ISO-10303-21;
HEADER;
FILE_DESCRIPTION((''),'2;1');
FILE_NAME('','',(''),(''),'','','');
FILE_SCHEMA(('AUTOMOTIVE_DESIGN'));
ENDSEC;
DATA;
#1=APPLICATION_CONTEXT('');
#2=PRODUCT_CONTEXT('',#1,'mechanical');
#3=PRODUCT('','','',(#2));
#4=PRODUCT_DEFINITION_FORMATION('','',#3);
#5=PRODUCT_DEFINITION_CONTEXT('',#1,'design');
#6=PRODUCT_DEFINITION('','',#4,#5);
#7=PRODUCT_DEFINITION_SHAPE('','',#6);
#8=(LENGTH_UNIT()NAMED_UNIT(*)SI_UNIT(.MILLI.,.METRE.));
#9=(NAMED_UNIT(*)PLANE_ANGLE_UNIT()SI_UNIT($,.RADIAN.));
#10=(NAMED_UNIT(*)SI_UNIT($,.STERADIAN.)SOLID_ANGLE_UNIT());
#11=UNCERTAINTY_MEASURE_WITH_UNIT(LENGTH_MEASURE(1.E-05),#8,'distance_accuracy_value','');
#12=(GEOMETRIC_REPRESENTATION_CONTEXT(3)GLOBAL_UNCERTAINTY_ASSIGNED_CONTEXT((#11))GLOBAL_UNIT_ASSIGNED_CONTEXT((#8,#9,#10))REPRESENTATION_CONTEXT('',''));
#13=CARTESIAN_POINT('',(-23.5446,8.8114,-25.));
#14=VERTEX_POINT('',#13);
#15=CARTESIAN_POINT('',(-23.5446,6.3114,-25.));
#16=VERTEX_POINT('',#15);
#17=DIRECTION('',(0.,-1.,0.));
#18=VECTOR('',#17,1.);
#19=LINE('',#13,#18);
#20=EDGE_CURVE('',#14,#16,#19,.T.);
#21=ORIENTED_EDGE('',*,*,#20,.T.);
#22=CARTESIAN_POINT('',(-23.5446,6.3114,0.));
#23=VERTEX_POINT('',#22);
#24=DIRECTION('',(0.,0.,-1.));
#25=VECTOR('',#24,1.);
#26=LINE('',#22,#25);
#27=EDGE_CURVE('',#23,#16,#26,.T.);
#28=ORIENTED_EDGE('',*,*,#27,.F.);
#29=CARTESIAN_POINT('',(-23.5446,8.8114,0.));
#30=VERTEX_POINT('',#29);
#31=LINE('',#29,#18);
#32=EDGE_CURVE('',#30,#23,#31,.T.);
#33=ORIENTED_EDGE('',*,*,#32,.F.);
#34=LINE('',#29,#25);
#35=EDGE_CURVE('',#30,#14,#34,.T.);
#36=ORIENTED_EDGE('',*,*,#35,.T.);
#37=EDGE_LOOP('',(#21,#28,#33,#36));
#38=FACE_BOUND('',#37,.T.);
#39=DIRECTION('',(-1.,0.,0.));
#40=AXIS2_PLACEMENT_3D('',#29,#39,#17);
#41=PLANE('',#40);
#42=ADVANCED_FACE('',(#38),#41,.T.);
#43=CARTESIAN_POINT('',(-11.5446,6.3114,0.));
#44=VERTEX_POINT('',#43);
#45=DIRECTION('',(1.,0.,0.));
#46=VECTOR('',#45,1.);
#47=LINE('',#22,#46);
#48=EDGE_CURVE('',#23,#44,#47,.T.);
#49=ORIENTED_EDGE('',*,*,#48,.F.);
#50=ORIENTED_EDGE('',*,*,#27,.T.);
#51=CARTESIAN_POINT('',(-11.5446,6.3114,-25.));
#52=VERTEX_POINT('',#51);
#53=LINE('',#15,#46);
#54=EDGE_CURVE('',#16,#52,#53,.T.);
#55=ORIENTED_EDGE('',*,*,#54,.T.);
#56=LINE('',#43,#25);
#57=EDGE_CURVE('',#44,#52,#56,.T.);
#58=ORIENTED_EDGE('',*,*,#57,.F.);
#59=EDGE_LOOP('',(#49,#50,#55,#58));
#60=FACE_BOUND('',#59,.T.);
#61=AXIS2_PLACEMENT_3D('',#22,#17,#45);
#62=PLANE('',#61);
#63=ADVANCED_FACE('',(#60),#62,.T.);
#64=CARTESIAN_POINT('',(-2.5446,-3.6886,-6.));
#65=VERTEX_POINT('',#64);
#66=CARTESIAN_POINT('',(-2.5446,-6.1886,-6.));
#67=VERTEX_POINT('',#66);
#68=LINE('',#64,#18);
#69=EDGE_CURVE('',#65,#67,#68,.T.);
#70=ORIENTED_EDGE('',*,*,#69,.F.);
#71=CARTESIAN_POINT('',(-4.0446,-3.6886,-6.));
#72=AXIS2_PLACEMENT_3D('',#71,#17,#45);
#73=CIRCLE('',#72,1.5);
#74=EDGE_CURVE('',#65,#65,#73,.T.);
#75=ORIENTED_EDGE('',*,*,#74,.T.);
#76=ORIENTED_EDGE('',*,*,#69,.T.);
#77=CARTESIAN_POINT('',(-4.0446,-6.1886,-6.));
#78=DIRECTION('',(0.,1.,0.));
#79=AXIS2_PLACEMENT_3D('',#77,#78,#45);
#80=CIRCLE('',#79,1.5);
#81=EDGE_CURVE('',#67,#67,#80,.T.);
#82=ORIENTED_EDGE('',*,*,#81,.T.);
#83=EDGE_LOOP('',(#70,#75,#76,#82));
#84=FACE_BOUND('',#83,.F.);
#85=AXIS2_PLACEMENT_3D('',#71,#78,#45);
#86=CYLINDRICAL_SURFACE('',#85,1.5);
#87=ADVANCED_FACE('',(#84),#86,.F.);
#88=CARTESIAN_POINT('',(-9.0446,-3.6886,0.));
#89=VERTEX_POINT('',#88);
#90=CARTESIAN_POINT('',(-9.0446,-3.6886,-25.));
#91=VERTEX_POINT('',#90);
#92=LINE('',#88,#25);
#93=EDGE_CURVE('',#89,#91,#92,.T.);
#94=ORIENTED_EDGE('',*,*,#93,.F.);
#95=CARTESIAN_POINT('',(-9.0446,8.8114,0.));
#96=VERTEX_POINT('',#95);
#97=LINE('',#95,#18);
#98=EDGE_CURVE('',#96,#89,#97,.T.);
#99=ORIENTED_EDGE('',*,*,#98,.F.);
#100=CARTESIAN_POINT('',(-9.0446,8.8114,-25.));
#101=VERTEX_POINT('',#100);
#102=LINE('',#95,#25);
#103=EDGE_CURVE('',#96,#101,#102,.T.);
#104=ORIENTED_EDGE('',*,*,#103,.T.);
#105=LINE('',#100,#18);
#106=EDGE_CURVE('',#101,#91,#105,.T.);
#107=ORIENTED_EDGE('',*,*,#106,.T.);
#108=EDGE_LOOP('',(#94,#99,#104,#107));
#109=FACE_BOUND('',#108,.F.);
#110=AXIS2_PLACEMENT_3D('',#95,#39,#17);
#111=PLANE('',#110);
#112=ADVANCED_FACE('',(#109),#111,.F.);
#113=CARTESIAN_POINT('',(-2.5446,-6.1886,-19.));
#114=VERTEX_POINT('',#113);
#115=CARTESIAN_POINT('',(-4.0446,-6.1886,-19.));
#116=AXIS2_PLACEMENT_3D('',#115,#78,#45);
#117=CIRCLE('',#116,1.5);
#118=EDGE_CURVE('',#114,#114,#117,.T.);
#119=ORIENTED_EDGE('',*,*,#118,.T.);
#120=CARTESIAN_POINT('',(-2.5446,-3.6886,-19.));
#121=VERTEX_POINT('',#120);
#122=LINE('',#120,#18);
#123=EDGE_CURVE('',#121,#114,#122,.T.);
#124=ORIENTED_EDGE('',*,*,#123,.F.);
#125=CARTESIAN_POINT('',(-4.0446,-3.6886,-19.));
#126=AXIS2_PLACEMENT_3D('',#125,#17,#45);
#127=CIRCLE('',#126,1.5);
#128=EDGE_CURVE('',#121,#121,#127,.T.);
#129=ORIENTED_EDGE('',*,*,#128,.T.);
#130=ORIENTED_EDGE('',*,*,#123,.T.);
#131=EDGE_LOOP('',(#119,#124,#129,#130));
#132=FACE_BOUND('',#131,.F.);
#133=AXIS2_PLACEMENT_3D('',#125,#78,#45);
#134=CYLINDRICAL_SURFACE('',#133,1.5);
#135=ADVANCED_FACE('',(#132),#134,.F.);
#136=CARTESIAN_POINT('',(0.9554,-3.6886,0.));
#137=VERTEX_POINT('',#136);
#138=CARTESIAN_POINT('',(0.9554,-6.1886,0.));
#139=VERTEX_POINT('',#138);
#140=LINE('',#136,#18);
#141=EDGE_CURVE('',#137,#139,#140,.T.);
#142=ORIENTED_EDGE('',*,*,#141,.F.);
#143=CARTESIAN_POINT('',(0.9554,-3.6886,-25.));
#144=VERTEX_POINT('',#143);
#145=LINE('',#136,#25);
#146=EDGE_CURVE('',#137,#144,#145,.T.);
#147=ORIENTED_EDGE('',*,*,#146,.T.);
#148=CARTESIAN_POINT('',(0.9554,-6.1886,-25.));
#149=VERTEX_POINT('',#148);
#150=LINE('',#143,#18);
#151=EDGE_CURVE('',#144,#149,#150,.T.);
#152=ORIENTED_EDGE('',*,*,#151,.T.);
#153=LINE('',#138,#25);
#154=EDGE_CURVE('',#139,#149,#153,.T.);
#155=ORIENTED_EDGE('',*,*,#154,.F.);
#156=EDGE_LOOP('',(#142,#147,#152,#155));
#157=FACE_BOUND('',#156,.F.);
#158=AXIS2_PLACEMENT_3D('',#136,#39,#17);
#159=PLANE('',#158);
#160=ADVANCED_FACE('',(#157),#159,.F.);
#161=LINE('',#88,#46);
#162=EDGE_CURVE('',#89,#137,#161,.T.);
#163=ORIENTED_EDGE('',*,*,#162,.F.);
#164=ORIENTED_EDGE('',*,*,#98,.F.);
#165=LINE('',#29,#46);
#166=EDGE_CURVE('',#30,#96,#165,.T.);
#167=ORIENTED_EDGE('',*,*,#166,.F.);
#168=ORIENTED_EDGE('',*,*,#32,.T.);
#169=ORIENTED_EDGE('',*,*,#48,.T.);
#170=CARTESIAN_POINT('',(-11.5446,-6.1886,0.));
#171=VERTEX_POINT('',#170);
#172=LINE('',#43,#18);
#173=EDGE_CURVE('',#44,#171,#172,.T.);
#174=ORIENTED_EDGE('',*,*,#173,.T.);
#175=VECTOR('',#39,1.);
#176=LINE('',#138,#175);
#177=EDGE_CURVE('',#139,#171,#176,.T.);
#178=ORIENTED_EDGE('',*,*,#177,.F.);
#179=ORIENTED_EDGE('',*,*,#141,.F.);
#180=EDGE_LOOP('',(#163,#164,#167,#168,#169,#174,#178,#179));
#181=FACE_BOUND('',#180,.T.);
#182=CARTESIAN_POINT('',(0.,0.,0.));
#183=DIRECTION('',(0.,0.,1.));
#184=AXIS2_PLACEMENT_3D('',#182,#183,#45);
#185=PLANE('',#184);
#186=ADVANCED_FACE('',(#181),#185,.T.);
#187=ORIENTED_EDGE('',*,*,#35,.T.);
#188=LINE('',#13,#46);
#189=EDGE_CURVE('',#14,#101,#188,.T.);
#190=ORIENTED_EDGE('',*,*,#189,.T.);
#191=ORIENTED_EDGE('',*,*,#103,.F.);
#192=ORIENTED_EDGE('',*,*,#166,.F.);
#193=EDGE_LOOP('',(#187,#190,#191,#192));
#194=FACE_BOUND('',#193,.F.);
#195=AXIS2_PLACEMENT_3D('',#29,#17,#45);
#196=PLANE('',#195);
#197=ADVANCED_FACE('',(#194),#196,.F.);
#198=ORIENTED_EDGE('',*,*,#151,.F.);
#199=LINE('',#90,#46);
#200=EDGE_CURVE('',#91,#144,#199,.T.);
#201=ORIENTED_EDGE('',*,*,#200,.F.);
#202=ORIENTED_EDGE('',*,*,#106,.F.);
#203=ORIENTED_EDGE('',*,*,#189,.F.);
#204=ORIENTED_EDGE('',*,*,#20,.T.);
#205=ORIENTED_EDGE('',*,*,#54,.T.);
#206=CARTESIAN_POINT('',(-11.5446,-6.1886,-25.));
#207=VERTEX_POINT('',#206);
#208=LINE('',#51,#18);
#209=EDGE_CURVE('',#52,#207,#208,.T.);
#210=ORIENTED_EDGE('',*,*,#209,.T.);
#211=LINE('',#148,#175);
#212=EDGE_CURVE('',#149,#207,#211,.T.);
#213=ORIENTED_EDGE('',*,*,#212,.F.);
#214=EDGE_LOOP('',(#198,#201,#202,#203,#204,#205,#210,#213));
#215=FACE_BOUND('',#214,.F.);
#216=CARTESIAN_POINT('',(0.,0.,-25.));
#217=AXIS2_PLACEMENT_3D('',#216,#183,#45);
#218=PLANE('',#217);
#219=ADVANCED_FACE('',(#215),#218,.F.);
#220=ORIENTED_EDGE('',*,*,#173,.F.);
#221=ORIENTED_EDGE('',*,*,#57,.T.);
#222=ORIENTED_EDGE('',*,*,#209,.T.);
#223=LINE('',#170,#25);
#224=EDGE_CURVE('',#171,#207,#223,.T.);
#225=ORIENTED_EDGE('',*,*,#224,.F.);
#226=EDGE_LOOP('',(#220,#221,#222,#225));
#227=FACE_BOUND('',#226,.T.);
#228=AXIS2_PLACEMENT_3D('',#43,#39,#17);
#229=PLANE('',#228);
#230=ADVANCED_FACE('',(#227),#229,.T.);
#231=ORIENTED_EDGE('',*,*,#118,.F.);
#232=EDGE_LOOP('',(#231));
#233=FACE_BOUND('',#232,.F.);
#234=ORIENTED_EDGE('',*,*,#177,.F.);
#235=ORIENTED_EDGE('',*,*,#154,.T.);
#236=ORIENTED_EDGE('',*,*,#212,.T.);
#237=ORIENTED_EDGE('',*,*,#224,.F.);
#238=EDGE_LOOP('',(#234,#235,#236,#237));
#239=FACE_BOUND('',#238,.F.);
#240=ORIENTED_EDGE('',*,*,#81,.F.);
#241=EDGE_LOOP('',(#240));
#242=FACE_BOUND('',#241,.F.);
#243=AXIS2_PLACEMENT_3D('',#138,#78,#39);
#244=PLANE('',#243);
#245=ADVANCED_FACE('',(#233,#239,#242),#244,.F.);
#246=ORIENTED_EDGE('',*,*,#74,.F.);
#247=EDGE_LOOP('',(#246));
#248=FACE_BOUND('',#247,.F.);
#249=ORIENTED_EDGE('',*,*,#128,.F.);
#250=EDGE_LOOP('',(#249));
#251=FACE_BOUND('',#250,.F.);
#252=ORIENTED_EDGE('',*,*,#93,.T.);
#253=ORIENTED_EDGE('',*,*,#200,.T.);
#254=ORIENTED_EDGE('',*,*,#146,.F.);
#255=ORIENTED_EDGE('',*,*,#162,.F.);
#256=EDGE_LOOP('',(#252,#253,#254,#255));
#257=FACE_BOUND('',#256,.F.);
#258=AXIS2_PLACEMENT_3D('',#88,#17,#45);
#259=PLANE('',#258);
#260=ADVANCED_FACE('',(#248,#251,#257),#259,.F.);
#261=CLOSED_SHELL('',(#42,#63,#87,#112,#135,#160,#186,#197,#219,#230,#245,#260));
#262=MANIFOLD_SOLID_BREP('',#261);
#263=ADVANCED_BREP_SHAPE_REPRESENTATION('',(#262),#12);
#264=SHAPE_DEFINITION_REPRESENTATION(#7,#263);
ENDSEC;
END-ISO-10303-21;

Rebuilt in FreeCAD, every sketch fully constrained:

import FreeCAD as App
import Part
import Sketcher


def add_polygon(sketch, points):
    """Adds a closed chain of lines whose ends are joined by coincident constraints."""
    first, n = sketch.GeometryCount, len(points)
    for a, b in zip(points, points[1:] + points[:1]):
        sketch.addGeometry(Part.LineSegment(App.Vector(*a, 0), App.Vector(*b, 0)), False)
    for i in range(n):
        sketch.addConstraint(Sketcher.Constraint("Coincident", first + i, 2, first + (i + 1) % n, 1))

doc = App.newDocument("Part")
body = doc.addObject("PartDesign::Body", "Body")

# Sketch on XY plane
sketch1 = doc.addObject("Sketcher::SketchObject", "Sketch")
body.addObject(sketch1)
sketch1.AttachmentSupport = (doc.XY_Plane, [""])
sketch1.MapMode = "FlatFace"
add_polygon(sketch1, [(-9.0446, -3.6886), (-9.0446, 8.8114), (-23.5446, 8.8114), (-23.5446, 6.3114), (-11.5446, 6.3114), (-11.5446, -6.1886), (0.9554, -6.1886), (0.9554, -3.6886)])  # lines 0-7
sketch1.addConstraint(Sketcher.Constraint("Vertical", 0))
sketch1.addConstraint(Sketcher.Constraint("Horizontal", 1))
sketch1.addConstraint(Sketcher.Constraint("Vertical", 2))
sketch1.addConstraint(Sketcher.Constraint("Horizontal", 3))
sketch1.addConstraint(Sketcher.Constraint("Vertical", 4))
sketch1.addConstraint(Sketcher.Constraint("Horizontal", 5))
sketch1.addConstraint(Sketcher.Constraint("Vertical", 6))
sketch1.addConstraint(Sketcher.Constraint("Horizontal", 7))
sketch1.addConstraint(Sketcher.Constraint("Equal", 5, 0))
sketch1.addConstraint(Sketcher.Constraint("Equal", 0, 4))
sketch1.addConstraint(Sketcher.Constraint("DistanceX", 7, 2, 7, 1, 10.0))
sketch1.addConstraint(Sketcher.Constraint("DistanceY", 2, 2, 2, 1, 2.5))
sketch1.addConstraint(Sketcher.Constraint("DistanceY", 6, 2, 3, 2, 10.0))
sketch1.addConstraint(Sketcher.Constraint("DistanceX", 2, 2, 5, 2, 24.5))
sketch1.addConstraint(Sketcher.Constraint("DistanceX", 0, 2, -1, 1, 9.0446))
sketch1.addConstraint(Sketcher.Constraint("DistanceY", -1, 1, 0, 2, 8.8114))
pad1 = doc.addObject("PartDesign::Pad", "Pad")
body.addObject(pad1)
pad1.Profile = sketch1
pad1.Length = 25
pad1.Reversed = True

# Sketch on XZ plane
sketch2 = doc.addObject("Sketcher::SketchObject", "Sketch001")
body.addObject(sketch2)
sketch2.AttachmentSupport = (doc.XZ_Plane, [""])
sketch2.MapMode = "FlatFace"
sketch2.AttachmentOffset = App.Placement(App.Vector(0, 0, 3.6886), App.Rotation())
sketch2.addGeometry(Part.Circle(App.Vector(-4.0446, -6, 0), App.Vector(0, 0, 1), 1.5), False)
sketch2.addGeometry(Part.Circle(App.Vector(-4.0446, -19, 0), App.Vector(0, 0, 1), 1.5), False)
sketch2.addConstraint(Sketcher.Constraint("Equal", 0, 1))
sketch2.addConstraint(Sketcher.Constraint("Vertical", 0, 3, 1, 3))
sketch2.addConstraint(Sketcher.Constraint("Diameter", 0, 3.0))
sketch2.addConstraint(Sketcher.Constraint("DistanceY", 0, 3, -1, 1, 6.0))
sketch2.addConstraint(Sketcher.Constraint("DistanceY", 1, 3, -1, 1, 19.0))
sketch2.addConstraint(Sketcher.Constraint("DistanceX", 0, 3, -1, 1, 4.0446))
pocket1 = doc.addObject("PartDesign::Pocket", "Pocket")
body.addObject(pocket1)
pocket1.Profile = sketch2
pocket1.Length = 4
pocket1.Reversed = True

doc.recompute()
